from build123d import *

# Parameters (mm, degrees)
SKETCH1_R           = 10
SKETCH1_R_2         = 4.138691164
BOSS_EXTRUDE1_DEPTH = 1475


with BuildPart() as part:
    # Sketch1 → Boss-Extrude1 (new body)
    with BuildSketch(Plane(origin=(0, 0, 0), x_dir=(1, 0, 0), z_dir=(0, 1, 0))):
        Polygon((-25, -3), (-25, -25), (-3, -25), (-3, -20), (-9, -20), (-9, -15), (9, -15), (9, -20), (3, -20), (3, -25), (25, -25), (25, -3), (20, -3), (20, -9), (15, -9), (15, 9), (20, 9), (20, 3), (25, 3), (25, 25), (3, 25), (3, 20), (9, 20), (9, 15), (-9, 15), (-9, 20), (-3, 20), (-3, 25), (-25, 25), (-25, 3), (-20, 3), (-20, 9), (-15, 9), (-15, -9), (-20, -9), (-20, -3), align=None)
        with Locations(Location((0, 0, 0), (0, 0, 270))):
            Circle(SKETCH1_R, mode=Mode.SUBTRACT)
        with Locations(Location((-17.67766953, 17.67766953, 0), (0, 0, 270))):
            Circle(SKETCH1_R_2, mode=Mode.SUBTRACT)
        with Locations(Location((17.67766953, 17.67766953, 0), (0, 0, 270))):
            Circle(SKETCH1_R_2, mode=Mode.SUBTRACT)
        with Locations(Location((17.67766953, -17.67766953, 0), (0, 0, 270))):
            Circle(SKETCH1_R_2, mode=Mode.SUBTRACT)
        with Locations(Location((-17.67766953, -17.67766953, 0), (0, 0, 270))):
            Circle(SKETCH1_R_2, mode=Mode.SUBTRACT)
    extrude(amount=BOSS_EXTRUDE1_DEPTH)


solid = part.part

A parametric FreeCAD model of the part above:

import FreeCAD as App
import Part
import Sketcher
from FreeCAD import Vector
Q = App.Units.Quantity


def add_polygon(sketch, points):
    """Adds a closed chain of lines whose ends are joined by coincident constraints."""
    first, n = sketch.GeometryCount, len(points)
    for a, b in zip(points, points[1:] + points[:1]):
        sketch.addGeometry(Part.LineSegment(App.Vector(*a, 0), App.Vector(*b, 0)), False)
    for i in range(n):
        sketch.addConstraint(Sketcher.Constraint("Coincident", first + i, 2, first + (i + 1) % n, 1))

doc = App.newDocument("Part")
body = doc.addObject("PartDesign::Body", "Body")

# Sketch on XZ plane
sketch1 = body.newObject("Sketcher::SketchObject", "Sketch")
sketch1.AttachmentSupport = (doc.getObject("XZ_Plane"), [""])
sketch1.MapMode = "FlatFace"
add_polygon(sketch1, [(-25, 3), (-25, 25), (-3, 25), (-3, 20), (-9, 20), (-9, 15), (9, 15), (9, 20), (3, 20), (3, 25), (25, 25), (25, 3), (20, 3), (20, 9), (15, 9), (15, -9), (20, -9), (20, -3), (25, -3), (25, -25), (3, -25), (3, -20), (9, -20), (9, -15), (-9, -15), (-9, -20), (-3, -20), (-3, -25), (-25, -25), (-25, -3), (-20, -3), (-20, -9), (-15, -9), (-15, 9), (-20, 9), (-20, 3)])  # lines 0-35
sketch1.addGeometry(Part.Circle(Vector(-17.7, 17.7, 0), Vector(0, 0, 1), 4.1), False)  # 36
sketch1.addGeometry(Part.Circle(Vector(17.7, 17.7, 0), Vector(0, 0, 1), 4.1), False)  # 37
sketch1.addGeometry(Part.Circle(Vector(-17.7, -17.7, 0), Vector(0, 0, 1), 4.1), False)  # 38
sketch1.addGeometry(Part.Circle(Vector(0, 0, 0), Vector(0, 0, 1), 10), False)  # 39
sketch1.addGeometry(Part.Circle(Vector(17.7, -17.7, 0), Vector(0, 0, 1), 4.1), False)  # 40
sketch1.addConstraint(Sketcher.Constraint("Vertical", 0))
sketch1.addConstraint(Sketcher.Constraint("Horizontal", 1))
sketch1.addConstraint(Sketcher.Constraint("Vertical", 2))
sketch1.addConstraint(Sketcher.Constraint("Horizontal", 3))
sketch1.addConstraint(Sketcher.Constraint("Vertical", 4))
sketch1.addConstraint(Sketcher.Constraint("Horizontal", 5))
sketch1.addConstraint(Sketcher.Constraint("Vertical", 6))
sketch1.addConstraint(Sketcher.Constraint("Horizontal", 7))
sketch1.addConstraint(Sketcher.Constraint("Vertical", 8))
sketch1.addConstraint(Sketcher.Constraint("Horizontal", 9))
sketch1.addConstraint(Sketcher.Constraint("Vertical", 10))
sketch1.addConstraint(Sketcher.Constraint("Horizontal", 11))
sketch1.addConstraint(Sketcher.Constraint("Vertical", 12))
sketch1.addConstraint(Sketcher.Constraint("Horizontal", 13))
sketch1.addConstraint(Sketcher.Constraint("Vertical", 14))
sketch1.addConstraint(Sketcher.Constraint("Horizontal", 15))
sketch1.addConstraint(Sketcher.Constraint("Vertical", 16))
sketch1.addConstraint(Sketcher.Constraint("Horizontal", 17))
sketch1.addConstraint(Sketcher.Constraint("Vertical", 18))
sketch1.addConstraint(Sketcher.Constraint("Horizontal", 19))
sketch1.addConstraint(Sketcher.Constraint("Vertical", 20))
sketch1.addConstraint(Sketcher.Constraint("Horizontal", 21))
sketch1.addConstraint(Sketcher.Constraint("Vertical", 22))
sketch1.addConstraint(Sketcher.Constraint("Horizontal", 23))
sketch1.addConstraint(Sketcher.Constraint("Vertical", 24))
sketch1.addConstraint(Sketcher.Constraint("Horizontal", 25))
sketch1.addConstraint(Sketcher.Constraint("Vertical", 26))
sketch1.addConstraint(Sketcher.Constraint("Horizontal", 27))
sketch1.addConstraint(Sketcher.Constraint("Vertical", 28))
sketch1.addConstraint(Sketcher.Constraint("Horizontal", 29))
sketch1.addConstraint(Sketcher.Constraint("Vertical", 30))
sketch1.addConstraint(Sketcher.Constraint("Horizontal", 31))
sketch1.addConstraint(Sketcher.Constraint("Vertical", 32))
sketch1.addConstraint(Sketcher.Constraint("Horizontal", 33))
sketch1.addConstraint(Sketcher.Constraint("Vertical", 34))
sketch1.addConstraint(Sketcher.Constraint("Horizontal", 35))
sketch1.addConstraint(Sketcher.Constraint("Coincident", 39, 3, -1, 1))
sketch1.addConstraint(Sketcher.Constraint("Equal", 36, 37))
sketch1.addConstraint(Sketcher.Constraint("Equal", 37, 38))
sketch1.addConstraint(Sketcher.Constraint("Equal", 38, 40))
sketch1.addConstraint(Sketcher.Constraint("Symmetric", 37, 3, 38, 3, -1, 1))
sketch1.addConstraint(Sketcher.Constraint("Symmetric", 36, 3, 40, 3, -1, 1))
sketch1.addConstraint(Sketcher.Constraint("Symmetric", 0, 2, 18, 2, -1, 1))
sketch1.addConstraint(Sketcher.Constraint("Symmetric", 2, 2, 20, 2, -1, 1))
sketch1.addConstraint(Sketcher.Constraint("Symmetric", 4, 2, 22, 2, -1, 1))
sketch1.addConstraint(Sketcher.Constraint("Symmetric", 6, 2, 24, 2, -1, 1))
sketch1.addConstraint(Sketcher.Constraint("Symmetric", 8, 2, 26, 2, -1, 1))
sketch1.addConstraint(Sketcher.Constraint("Symmetric", 10, 2, 28, 2, -1, 1))
sketch1.addConstraint(Sketcher.Constraint("Symmetric", 12, 2, 30, 2, -1, 1))
sketch1.addConstraint(Sketcher.Constraint("Symmetric", 14, 2, 32, 2, -1, 1))
sketch1.addConstraint(Sketcher.Constraint("Symmetric", 16, 2, 34, 2, -1, 1))
sketch1.addConstraint(Sketcher.Constraint("Symmetric", 36, 3, 37, 3, -2))
sketch1.addConstraint(Sketcher.Constraint("Symmetric", 3, 2, 6, 2, -2))
sketch1.addConstraint(Sketcher.Constraint("Symmetric", 1, 2, 8, 2, -2))
sketch1.addConstraint(Sketcher.Constraint("Symmetric", 17, 2, 28, 2, -2))
sketch1.addConstraint(Sketcher.Constraint("Symmetric", 15, 2, 30, 2, -2))
sketch1.addConstraint(Sketcher.Constraint("Equal", 11, 13))
sketch1.addConstraint(Sketcher.Constraint("Equal", 27, 0))
sketch1.addConstraint(Sketcher.Constraint("Equal", 35, 2))
sketch1.addConstraint(Sketcher.Constraint("Equal", 2, 4))
sketch1.addConstraint(Sketcher.Constraint("Equal", 25, 12))
sketch1.addConstraint(Sketcher.Constraint("Equal", 23, 14))
sketch1.addConstraint(Sketcher.Constraint("Diameter", 39, Q("20 mm")))
sketch1.addConstraint(Sketcher.Constraint("DistanceX", 1, 1, 1, 2, Q("22 mm")))
sketch1.addConstraint(Sketcher.Constraint("DistanceX", 3, 2, 3, 1, Q("6 mm")))
sketch1.addConstraint(Sketcher.Constraint("DistanceX", 5, 1, 5, 2, Q("18 mm")))
sketch1.addConstraint(Sketcher.Constraint("DistanceX", 11, 2, 11, 1, Q("5 mm")))
sketch1.addConstraint(Sketcher.Constraint("Diameter", 36, Q("8.277382 mm")))
sketch1.addConstraint(Sketcher.Constraint("DistanceX", 36, 3, -1, 1, Q("17.67767 mm")))
sketch1.addConstraint(Sketcher.Constraint("DistanceY", -1, 1, 36, 3, Q("17.67767 mm")))
pad1 = body.newObject("PartDesign::Pad", "Pad")
pad1.Profile = sketch1
pad1.Length = 1475
pad1.Reversed = True

doc.recompute()
